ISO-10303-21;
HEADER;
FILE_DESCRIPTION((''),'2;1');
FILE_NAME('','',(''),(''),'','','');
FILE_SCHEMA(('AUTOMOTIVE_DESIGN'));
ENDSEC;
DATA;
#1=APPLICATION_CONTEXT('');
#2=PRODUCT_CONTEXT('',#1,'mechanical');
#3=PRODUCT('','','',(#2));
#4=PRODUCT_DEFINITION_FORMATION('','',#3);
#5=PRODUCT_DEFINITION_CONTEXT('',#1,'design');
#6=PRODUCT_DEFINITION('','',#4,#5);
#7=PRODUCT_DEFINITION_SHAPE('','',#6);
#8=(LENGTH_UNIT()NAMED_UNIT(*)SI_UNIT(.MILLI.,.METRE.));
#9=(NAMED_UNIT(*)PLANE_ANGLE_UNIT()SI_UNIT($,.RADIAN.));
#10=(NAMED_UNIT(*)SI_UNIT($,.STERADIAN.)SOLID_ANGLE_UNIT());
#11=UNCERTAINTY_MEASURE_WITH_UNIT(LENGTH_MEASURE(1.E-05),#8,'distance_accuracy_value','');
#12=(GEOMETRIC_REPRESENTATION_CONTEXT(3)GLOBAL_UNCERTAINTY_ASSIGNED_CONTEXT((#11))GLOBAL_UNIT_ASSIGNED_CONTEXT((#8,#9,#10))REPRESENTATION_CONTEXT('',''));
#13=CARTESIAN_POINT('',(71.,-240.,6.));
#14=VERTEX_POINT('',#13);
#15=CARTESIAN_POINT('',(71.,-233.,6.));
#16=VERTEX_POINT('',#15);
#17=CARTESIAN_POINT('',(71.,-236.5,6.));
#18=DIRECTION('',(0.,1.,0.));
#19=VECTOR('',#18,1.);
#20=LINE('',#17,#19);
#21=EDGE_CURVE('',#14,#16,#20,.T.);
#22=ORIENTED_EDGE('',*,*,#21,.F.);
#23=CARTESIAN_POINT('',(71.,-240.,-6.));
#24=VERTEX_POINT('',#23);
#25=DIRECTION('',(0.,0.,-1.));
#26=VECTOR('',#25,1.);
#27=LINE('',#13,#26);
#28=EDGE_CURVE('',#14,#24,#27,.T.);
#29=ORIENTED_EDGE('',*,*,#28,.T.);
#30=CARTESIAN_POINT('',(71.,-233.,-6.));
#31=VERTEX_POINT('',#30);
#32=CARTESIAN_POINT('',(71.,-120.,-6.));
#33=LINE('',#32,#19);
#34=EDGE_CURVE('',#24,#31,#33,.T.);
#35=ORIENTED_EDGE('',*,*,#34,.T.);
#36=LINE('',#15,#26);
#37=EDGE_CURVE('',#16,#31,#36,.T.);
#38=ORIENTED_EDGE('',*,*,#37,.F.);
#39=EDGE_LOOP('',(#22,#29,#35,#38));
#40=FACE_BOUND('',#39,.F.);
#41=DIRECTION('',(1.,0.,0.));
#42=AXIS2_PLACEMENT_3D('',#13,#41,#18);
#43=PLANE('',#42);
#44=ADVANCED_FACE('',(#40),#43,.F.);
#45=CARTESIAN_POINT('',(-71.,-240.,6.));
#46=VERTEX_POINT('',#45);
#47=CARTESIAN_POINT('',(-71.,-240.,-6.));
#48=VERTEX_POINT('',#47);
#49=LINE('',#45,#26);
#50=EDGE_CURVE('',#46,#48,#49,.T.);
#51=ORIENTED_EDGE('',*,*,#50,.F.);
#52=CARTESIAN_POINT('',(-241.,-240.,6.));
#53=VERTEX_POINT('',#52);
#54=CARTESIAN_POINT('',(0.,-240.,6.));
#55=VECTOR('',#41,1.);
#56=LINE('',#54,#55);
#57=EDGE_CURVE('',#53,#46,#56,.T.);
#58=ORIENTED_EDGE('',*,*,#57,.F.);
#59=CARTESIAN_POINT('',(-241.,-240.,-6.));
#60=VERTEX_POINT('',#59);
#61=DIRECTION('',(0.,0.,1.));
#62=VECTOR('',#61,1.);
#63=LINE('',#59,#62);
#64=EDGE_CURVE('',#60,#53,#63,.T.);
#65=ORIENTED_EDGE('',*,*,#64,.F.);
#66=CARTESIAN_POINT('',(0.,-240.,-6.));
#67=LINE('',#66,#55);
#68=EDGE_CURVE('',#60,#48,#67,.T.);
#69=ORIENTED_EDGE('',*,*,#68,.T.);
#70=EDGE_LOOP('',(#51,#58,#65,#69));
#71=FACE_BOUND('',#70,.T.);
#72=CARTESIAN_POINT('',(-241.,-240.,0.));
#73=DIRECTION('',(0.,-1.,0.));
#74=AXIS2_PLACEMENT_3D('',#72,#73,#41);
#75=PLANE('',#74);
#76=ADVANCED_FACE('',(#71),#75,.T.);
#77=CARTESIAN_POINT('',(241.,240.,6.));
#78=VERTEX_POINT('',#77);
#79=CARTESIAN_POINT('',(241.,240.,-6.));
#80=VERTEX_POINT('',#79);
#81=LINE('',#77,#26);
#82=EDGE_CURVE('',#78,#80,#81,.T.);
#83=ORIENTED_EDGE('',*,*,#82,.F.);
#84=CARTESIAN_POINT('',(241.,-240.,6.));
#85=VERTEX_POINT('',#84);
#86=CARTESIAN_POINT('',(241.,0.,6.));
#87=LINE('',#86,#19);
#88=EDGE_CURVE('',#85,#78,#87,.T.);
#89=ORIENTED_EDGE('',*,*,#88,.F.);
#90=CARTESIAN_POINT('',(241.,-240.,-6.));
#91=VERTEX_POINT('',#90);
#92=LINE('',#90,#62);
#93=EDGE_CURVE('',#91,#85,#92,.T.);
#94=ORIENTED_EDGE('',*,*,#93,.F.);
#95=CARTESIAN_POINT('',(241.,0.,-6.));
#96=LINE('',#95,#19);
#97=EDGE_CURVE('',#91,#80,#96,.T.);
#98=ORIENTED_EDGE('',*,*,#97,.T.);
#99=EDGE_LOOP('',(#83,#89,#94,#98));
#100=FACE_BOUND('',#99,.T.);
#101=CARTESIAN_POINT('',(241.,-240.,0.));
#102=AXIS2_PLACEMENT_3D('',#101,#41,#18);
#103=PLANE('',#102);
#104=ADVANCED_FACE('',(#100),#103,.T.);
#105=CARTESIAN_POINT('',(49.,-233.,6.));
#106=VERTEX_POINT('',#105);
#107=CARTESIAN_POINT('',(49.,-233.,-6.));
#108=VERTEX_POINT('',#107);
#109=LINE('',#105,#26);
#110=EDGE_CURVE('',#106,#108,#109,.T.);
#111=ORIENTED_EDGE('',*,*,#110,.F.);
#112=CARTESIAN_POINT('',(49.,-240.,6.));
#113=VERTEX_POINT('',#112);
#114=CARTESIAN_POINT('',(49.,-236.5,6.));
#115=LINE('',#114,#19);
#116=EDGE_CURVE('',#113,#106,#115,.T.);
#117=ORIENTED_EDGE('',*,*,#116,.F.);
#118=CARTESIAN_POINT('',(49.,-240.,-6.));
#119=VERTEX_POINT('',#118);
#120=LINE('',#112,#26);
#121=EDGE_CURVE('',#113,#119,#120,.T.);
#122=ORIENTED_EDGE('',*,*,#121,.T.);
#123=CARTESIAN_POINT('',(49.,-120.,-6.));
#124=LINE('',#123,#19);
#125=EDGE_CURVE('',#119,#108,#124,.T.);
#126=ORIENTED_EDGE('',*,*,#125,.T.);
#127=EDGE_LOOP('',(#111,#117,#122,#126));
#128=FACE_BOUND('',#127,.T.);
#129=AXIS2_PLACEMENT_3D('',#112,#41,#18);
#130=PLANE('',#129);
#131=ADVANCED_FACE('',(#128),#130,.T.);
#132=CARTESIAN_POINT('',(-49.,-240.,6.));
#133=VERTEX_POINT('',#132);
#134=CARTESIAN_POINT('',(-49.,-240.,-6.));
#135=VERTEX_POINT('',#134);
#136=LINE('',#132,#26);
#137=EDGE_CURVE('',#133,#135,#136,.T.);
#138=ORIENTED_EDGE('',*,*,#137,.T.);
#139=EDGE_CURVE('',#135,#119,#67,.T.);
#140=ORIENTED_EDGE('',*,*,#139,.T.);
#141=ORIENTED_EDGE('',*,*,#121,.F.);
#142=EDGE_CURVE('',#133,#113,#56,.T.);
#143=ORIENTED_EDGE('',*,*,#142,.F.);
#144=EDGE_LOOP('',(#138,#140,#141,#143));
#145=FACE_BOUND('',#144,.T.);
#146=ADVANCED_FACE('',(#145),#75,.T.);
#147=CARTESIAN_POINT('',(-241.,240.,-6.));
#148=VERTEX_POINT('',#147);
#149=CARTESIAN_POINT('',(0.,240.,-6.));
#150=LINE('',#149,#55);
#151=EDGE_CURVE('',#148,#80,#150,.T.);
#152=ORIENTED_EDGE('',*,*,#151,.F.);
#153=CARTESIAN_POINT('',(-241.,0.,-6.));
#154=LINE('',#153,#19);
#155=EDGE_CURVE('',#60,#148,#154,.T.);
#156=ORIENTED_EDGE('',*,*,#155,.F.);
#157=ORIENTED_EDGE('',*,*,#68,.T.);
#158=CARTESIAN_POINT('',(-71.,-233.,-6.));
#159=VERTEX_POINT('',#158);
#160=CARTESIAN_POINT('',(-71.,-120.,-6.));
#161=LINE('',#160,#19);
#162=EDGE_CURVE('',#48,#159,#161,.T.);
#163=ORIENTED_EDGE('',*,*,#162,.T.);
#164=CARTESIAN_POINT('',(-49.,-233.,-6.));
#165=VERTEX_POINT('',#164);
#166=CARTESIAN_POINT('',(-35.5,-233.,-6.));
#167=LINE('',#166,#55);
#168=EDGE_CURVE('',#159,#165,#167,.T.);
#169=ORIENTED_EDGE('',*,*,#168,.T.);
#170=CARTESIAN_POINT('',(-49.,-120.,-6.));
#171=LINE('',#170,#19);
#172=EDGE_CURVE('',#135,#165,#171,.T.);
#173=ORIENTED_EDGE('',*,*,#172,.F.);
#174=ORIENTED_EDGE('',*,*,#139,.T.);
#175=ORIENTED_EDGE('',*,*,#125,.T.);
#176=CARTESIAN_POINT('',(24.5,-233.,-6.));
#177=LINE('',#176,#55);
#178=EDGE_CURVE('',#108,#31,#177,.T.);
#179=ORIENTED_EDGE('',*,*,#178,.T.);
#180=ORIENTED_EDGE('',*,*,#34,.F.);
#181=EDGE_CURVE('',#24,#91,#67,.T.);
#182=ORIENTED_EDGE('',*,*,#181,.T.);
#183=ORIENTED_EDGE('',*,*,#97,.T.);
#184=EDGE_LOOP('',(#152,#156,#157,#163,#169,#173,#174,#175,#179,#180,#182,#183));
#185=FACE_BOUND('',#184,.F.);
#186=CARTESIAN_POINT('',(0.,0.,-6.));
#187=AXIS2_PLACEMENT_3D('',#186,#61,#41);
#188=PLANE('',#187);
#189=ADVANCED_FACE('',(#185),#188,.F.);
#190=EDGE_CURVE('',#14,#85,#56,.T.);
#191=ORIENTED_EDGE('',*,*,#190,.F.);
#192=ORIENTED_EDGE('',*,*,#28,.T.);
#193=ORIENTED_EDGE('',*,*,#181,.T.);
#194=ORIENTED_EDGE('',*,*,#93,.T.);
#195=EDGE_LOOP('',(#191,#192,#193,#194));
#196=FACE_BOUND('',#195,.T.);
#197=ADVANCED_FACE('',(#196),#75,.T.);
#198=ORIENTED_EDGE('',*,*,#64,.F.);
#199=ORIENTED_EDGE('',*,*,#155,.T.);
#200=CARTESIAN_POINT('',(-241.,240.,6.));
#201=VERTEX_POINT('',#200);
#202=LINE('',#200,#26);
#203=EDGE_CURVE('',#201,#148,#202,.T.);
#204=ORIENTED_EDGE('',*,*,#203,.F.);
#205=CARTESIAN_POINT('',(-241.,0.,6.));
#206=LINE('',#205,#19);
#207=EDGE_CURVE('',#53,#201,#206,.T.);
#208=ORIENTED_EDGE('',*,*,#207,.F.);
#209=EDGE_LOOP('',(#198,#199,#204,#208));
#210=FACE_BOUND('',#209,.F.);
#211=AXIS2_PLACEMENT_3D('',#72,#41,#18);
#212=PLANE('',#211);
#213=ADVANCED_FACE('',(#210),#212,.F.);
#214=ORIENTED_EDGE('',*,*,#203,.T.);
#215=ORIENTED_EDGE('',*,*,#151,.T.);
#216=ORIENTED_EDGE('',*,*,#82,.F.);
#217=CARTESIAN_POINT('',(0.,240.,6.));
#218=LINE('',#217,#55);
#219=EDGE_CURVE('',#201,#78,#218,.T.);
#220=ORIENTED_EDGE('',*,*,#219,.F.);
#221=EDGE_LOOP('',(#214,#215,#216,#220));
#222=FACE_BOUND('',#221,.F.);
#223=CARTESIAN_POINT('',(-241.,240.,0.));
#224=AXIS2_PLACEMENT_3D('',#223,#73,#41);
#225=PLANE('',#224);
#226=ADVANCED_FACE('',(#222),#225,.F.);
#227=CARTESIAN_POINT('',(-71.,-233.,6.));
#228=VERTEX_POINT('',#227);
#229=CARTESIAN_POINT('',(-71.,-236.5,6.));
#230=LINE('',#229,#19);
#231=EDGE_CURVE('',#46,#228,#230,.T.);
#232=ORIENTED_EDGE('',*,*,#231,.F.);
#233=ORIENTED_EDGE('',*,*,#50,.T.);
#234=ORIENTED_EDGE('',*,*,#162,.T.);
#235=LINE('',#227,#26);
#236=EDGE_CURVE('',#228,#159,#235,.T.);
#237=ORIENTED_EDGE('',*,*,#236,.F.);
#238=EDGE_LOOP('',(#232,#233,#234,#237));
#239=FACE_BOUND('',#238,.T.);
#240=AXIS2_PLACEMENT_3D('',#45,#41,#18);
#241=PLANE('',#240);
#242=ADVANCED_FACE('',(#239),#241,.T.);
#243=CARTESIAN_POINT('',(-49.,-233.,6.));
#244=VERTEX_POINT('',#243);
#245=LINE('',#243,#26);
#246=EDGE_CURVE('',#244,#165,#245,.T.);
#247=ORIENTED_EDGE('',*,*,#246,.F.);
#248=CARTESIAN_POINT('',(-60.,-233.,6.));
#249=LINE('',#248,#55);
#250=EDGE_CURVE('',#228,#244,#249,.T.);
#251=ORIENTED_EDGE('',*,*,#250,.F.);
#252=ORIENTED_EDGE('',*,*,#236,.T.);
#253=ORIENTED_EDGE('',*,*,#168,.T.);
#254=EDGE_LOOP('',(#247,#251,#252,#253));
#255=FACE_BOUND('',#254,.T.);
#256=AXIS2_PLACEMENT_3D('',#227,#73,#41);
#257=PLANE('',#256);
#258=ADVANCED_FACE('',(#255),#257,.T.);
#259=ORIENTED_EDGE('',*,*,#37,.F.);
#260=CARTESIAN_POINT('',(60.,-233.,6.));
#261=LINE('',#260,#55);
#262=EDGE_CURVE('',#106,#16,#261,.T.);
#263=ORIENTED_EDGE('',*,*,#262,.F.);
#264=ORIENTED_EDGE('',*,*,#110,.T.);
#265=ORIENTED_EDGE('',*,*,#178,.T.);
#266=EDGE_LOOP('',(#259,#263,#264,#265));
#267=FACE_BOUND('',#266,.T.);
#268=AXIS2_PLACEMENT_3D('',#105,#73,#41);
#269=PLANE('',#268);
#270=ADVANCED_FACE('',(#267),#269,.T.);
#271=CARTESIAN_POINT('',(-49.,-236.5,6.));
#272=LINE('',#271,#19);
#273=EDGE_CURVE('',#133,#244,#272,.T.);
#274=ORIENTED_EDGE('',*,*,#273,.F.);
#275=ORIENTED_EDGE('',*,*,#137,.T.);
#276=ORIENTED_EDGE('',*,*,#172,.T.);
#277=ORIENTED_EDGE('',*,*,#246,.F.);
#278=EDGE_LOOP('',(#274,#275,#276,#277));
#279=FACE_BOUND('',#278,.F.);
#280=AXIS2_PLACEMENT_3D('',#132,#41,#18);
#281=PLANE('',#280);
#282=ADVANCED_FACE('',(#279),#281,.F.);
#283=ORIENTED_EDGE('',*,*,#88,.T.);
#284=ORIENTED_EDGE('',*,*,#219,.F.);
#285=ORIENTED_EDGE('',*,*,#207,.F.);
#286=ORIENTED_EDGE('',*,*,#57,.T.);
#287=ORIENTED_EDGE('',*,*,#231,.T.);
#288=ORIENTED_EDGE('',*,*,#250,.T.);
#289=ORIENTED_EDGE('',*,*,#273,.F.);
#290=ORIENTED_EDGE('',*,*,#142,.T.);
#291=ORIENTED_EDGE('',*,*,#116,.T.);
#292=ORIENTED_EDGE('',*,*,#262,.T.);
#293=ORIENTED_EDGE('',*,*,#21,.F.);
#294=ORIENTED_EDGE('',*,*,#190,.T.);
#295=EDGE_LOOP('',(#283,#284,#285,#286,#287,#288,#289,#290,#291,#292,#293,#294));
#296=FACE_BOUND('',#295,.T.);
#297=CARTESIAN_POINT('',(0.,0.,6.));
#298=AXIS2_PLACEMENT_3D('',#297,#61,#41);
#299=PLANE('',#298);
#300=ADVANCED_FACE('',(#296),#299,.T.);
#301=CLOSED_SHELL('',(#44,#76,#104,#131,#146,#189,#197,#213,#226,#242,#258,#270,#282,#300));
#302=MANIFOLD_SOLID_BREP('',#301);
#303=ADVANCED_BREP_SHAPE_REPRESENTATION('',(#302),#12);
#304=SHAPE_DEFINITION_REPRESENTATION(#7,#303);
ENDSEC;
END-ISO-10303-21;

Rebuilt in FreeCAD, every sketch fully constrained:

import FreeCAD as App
import Part
import Sketcher
from FreeCAD import Vector
Q = App.Units.Quantity

doc = App.newDocument("Part")
body = doc.addObject("PartDesign::Body", "Body")

# Sketch on XY plane
sketch1 = body.newObject("Sketcher::SketchObject", "Sketch")
sketch1.AttachmentSupport = (doc.getObject("XY_Plane"), [""])
sketch1.MapMode = "FlatFace"
sketch1.addGeometry(Part.LineSegment(Vector(-241, 240, 0), Vector(-241, -240, 0)), False)
sketch1.addGeometry(Part.LineSegment(Vector(-241, -240, 0), Vector(241, -240, 0)), False)
sketch1.addGeometry(Part.LineSegment(Vector(241, -240, 0), Vector(241, 240, 0)), False)
sketch1.addGeometry(Part.LineSegment(Vector(241, 240, 0), Vector(-241, 240, 0)), False)
sketch1.addConstraint(Sketcher.Constraint("Coincident", 0, 2, 1, 1))
sketch1.addConstraint(Sketcher.Constraint("Coincident", 1, 2, 2, 1))
sketch1.addConstraint(Sketcher.Constraint("Coincident", 2, 2, 3, 1))
sketch1.addConstraint(Sketcher.Constraint("Coincident", 3, 2, 0, 1))
sketch1.addConstraint(Sketcher.Constraint("Vertical", 0))
sketch1.addConstraint(Sketcher.Constraint("Horizontal", 1))
sketch1.addConstraint(Sketcher.Constraint("Vertical", 2))
sketch1.addConstraint(Sketcher.Constraint("Horizontal", 3))
sketch1.addConstraint(Sketcher.Constraint("Symmetric", 0, 2, 2, 2, -1, 1))
sketch1.addConstraint(Sketcher.Constraint("DistanceX", 1, 1, 1, 2, Q("482 mm")))
sketch1.addConstraint(Sketcher.Constraint("DistanceY", 0, 2, 0, 1, Q("480 mm")))
pad1 = body.newObject("PartDesign::Pad", "Pad")
pad1.Profile = sketch1
pad1.Length = 12
pad1.Midplane = True

# Sketch on XY plane
sketch2 = body.newObject("Sketcher::SketchObject", "Sketch001")
sketch2.AttachmentSupport = (doc.getObject("XY_Plane"), [""])
sketch2.MapMode = "FlatFace"
sketch2.AttachmentOffset = App.Placement(Vector(0, 0, 6), App.Rotation())
sketch2.addGeometry(Part.LineSegment(Vector(-71, -233, 0), Vector(-71, -240, 0)), False)
sketch2.addGeometry(Part.LineSegment(Vector(-71, -240, 0), Vector(-49, -240, 0)), False)
sketch2.addGeometry(Part.LineSegment(Vector(-49, -240, 0), Vector(-49, -233, 0)), False)
sketch2.addGeometry(Part.LineSegment(Vector(-49, -233, 0), Vector(-71, -233, 0)), False)
sketch2.addGeometry(Part.LineSegment(Vector(49, -233, 0), Vector(49, -240, 0)), False)
sketch2.addGeometry(Part.LineSegment(Vector(49, -240, 0), Vector(71, -240, 0)), False)
sketch2.addGeometry(Part.LineSegment(Vector(71, -240, 0), Vector(71, -233, 0)), False)
sketch2.addGeometry(Part.LineSegment(Vector(71, -233, 0), Vector(49, -233, 0)), False)
sketch2.addConstraint(Sketcher.Constraint("Coincident", 0, 2, 1, 1))
sketch2.addConstraint(Sketcher.Constraint("Coincident", 1, 2, 2, 1))
sketch2.addConstraint(Sketcher.Constraint("Coincident", 2, 2, 3, 1))
sketch2.addConstraint(Sketcher.Constraint("Coincident", 3, 2, 0, 1))
sketch2.addConstraint(Sketcher.Constraint("Coincident", 4, 2, 5, 1))
sketch2.addConstraint(Sketcher.Constraint("Coincident", 5, 2, 6, 1))
sketch2.addConstraint(Sketcher.Constraint("Coincident", 6, 2, 7, 1))
sketch2.addConstraint(Sketcher.Constraint("Coincident", 7, 2, 4, 1))
sketch2.addConstraint(Sketcher.Constraint("Vertical", 0))
sketch2.addConstraint(Sketcher.Constraint("Horizontal", 1))
sketch2.addConstraint(Sketcher.Constraint("Vertical", 2))
sketch2.addConstraint(Sketcher.Constraint("Horizontal", 3))
sketch2.addConstraint(Sketcher.Constraint("Vertical", 4))
sketch2.addConstraint(Sketcher.Constraint("Horizontal", 5))
sketch2.addConstraint(Sketcher.Constraint("Vertical", 6))
sketch2.addConstraint(Sketcher.Constraint("Horizontal", 7))
sketch2.addConstraint(Sketcher.Constraint("Symmetric", 1, 2, 4, 2, -2))
sketch2.addConstraint(Sketcher.Constraint("Symmetric", 3, 2, 6, 2, -2))
sketch2.addConstraint(Sketcher.Constraint("DistanceX", 1, 1, 1, 2, Q("22 mm")))
sketch2.addConstraint(Sketcher.Constraint("DistanceY", 0, 2, 0, 1, Q("7 mm")))
sketch2.addConstraint(Sketcher.Constraint("DistanceX", 0, 2, -1, 1, Q("71 mm")))
sketch2.addConstraint(Sketcher.Constraint("DistanceY", 0, 2, -1, 1, Q("240 mm")))
pocket1 = body.newObject("PartDesign::Pocket", "Pocket")
pocket1.Profile = sketch2
pocket1.Type = "ThroughAll"

doc.recompute()
